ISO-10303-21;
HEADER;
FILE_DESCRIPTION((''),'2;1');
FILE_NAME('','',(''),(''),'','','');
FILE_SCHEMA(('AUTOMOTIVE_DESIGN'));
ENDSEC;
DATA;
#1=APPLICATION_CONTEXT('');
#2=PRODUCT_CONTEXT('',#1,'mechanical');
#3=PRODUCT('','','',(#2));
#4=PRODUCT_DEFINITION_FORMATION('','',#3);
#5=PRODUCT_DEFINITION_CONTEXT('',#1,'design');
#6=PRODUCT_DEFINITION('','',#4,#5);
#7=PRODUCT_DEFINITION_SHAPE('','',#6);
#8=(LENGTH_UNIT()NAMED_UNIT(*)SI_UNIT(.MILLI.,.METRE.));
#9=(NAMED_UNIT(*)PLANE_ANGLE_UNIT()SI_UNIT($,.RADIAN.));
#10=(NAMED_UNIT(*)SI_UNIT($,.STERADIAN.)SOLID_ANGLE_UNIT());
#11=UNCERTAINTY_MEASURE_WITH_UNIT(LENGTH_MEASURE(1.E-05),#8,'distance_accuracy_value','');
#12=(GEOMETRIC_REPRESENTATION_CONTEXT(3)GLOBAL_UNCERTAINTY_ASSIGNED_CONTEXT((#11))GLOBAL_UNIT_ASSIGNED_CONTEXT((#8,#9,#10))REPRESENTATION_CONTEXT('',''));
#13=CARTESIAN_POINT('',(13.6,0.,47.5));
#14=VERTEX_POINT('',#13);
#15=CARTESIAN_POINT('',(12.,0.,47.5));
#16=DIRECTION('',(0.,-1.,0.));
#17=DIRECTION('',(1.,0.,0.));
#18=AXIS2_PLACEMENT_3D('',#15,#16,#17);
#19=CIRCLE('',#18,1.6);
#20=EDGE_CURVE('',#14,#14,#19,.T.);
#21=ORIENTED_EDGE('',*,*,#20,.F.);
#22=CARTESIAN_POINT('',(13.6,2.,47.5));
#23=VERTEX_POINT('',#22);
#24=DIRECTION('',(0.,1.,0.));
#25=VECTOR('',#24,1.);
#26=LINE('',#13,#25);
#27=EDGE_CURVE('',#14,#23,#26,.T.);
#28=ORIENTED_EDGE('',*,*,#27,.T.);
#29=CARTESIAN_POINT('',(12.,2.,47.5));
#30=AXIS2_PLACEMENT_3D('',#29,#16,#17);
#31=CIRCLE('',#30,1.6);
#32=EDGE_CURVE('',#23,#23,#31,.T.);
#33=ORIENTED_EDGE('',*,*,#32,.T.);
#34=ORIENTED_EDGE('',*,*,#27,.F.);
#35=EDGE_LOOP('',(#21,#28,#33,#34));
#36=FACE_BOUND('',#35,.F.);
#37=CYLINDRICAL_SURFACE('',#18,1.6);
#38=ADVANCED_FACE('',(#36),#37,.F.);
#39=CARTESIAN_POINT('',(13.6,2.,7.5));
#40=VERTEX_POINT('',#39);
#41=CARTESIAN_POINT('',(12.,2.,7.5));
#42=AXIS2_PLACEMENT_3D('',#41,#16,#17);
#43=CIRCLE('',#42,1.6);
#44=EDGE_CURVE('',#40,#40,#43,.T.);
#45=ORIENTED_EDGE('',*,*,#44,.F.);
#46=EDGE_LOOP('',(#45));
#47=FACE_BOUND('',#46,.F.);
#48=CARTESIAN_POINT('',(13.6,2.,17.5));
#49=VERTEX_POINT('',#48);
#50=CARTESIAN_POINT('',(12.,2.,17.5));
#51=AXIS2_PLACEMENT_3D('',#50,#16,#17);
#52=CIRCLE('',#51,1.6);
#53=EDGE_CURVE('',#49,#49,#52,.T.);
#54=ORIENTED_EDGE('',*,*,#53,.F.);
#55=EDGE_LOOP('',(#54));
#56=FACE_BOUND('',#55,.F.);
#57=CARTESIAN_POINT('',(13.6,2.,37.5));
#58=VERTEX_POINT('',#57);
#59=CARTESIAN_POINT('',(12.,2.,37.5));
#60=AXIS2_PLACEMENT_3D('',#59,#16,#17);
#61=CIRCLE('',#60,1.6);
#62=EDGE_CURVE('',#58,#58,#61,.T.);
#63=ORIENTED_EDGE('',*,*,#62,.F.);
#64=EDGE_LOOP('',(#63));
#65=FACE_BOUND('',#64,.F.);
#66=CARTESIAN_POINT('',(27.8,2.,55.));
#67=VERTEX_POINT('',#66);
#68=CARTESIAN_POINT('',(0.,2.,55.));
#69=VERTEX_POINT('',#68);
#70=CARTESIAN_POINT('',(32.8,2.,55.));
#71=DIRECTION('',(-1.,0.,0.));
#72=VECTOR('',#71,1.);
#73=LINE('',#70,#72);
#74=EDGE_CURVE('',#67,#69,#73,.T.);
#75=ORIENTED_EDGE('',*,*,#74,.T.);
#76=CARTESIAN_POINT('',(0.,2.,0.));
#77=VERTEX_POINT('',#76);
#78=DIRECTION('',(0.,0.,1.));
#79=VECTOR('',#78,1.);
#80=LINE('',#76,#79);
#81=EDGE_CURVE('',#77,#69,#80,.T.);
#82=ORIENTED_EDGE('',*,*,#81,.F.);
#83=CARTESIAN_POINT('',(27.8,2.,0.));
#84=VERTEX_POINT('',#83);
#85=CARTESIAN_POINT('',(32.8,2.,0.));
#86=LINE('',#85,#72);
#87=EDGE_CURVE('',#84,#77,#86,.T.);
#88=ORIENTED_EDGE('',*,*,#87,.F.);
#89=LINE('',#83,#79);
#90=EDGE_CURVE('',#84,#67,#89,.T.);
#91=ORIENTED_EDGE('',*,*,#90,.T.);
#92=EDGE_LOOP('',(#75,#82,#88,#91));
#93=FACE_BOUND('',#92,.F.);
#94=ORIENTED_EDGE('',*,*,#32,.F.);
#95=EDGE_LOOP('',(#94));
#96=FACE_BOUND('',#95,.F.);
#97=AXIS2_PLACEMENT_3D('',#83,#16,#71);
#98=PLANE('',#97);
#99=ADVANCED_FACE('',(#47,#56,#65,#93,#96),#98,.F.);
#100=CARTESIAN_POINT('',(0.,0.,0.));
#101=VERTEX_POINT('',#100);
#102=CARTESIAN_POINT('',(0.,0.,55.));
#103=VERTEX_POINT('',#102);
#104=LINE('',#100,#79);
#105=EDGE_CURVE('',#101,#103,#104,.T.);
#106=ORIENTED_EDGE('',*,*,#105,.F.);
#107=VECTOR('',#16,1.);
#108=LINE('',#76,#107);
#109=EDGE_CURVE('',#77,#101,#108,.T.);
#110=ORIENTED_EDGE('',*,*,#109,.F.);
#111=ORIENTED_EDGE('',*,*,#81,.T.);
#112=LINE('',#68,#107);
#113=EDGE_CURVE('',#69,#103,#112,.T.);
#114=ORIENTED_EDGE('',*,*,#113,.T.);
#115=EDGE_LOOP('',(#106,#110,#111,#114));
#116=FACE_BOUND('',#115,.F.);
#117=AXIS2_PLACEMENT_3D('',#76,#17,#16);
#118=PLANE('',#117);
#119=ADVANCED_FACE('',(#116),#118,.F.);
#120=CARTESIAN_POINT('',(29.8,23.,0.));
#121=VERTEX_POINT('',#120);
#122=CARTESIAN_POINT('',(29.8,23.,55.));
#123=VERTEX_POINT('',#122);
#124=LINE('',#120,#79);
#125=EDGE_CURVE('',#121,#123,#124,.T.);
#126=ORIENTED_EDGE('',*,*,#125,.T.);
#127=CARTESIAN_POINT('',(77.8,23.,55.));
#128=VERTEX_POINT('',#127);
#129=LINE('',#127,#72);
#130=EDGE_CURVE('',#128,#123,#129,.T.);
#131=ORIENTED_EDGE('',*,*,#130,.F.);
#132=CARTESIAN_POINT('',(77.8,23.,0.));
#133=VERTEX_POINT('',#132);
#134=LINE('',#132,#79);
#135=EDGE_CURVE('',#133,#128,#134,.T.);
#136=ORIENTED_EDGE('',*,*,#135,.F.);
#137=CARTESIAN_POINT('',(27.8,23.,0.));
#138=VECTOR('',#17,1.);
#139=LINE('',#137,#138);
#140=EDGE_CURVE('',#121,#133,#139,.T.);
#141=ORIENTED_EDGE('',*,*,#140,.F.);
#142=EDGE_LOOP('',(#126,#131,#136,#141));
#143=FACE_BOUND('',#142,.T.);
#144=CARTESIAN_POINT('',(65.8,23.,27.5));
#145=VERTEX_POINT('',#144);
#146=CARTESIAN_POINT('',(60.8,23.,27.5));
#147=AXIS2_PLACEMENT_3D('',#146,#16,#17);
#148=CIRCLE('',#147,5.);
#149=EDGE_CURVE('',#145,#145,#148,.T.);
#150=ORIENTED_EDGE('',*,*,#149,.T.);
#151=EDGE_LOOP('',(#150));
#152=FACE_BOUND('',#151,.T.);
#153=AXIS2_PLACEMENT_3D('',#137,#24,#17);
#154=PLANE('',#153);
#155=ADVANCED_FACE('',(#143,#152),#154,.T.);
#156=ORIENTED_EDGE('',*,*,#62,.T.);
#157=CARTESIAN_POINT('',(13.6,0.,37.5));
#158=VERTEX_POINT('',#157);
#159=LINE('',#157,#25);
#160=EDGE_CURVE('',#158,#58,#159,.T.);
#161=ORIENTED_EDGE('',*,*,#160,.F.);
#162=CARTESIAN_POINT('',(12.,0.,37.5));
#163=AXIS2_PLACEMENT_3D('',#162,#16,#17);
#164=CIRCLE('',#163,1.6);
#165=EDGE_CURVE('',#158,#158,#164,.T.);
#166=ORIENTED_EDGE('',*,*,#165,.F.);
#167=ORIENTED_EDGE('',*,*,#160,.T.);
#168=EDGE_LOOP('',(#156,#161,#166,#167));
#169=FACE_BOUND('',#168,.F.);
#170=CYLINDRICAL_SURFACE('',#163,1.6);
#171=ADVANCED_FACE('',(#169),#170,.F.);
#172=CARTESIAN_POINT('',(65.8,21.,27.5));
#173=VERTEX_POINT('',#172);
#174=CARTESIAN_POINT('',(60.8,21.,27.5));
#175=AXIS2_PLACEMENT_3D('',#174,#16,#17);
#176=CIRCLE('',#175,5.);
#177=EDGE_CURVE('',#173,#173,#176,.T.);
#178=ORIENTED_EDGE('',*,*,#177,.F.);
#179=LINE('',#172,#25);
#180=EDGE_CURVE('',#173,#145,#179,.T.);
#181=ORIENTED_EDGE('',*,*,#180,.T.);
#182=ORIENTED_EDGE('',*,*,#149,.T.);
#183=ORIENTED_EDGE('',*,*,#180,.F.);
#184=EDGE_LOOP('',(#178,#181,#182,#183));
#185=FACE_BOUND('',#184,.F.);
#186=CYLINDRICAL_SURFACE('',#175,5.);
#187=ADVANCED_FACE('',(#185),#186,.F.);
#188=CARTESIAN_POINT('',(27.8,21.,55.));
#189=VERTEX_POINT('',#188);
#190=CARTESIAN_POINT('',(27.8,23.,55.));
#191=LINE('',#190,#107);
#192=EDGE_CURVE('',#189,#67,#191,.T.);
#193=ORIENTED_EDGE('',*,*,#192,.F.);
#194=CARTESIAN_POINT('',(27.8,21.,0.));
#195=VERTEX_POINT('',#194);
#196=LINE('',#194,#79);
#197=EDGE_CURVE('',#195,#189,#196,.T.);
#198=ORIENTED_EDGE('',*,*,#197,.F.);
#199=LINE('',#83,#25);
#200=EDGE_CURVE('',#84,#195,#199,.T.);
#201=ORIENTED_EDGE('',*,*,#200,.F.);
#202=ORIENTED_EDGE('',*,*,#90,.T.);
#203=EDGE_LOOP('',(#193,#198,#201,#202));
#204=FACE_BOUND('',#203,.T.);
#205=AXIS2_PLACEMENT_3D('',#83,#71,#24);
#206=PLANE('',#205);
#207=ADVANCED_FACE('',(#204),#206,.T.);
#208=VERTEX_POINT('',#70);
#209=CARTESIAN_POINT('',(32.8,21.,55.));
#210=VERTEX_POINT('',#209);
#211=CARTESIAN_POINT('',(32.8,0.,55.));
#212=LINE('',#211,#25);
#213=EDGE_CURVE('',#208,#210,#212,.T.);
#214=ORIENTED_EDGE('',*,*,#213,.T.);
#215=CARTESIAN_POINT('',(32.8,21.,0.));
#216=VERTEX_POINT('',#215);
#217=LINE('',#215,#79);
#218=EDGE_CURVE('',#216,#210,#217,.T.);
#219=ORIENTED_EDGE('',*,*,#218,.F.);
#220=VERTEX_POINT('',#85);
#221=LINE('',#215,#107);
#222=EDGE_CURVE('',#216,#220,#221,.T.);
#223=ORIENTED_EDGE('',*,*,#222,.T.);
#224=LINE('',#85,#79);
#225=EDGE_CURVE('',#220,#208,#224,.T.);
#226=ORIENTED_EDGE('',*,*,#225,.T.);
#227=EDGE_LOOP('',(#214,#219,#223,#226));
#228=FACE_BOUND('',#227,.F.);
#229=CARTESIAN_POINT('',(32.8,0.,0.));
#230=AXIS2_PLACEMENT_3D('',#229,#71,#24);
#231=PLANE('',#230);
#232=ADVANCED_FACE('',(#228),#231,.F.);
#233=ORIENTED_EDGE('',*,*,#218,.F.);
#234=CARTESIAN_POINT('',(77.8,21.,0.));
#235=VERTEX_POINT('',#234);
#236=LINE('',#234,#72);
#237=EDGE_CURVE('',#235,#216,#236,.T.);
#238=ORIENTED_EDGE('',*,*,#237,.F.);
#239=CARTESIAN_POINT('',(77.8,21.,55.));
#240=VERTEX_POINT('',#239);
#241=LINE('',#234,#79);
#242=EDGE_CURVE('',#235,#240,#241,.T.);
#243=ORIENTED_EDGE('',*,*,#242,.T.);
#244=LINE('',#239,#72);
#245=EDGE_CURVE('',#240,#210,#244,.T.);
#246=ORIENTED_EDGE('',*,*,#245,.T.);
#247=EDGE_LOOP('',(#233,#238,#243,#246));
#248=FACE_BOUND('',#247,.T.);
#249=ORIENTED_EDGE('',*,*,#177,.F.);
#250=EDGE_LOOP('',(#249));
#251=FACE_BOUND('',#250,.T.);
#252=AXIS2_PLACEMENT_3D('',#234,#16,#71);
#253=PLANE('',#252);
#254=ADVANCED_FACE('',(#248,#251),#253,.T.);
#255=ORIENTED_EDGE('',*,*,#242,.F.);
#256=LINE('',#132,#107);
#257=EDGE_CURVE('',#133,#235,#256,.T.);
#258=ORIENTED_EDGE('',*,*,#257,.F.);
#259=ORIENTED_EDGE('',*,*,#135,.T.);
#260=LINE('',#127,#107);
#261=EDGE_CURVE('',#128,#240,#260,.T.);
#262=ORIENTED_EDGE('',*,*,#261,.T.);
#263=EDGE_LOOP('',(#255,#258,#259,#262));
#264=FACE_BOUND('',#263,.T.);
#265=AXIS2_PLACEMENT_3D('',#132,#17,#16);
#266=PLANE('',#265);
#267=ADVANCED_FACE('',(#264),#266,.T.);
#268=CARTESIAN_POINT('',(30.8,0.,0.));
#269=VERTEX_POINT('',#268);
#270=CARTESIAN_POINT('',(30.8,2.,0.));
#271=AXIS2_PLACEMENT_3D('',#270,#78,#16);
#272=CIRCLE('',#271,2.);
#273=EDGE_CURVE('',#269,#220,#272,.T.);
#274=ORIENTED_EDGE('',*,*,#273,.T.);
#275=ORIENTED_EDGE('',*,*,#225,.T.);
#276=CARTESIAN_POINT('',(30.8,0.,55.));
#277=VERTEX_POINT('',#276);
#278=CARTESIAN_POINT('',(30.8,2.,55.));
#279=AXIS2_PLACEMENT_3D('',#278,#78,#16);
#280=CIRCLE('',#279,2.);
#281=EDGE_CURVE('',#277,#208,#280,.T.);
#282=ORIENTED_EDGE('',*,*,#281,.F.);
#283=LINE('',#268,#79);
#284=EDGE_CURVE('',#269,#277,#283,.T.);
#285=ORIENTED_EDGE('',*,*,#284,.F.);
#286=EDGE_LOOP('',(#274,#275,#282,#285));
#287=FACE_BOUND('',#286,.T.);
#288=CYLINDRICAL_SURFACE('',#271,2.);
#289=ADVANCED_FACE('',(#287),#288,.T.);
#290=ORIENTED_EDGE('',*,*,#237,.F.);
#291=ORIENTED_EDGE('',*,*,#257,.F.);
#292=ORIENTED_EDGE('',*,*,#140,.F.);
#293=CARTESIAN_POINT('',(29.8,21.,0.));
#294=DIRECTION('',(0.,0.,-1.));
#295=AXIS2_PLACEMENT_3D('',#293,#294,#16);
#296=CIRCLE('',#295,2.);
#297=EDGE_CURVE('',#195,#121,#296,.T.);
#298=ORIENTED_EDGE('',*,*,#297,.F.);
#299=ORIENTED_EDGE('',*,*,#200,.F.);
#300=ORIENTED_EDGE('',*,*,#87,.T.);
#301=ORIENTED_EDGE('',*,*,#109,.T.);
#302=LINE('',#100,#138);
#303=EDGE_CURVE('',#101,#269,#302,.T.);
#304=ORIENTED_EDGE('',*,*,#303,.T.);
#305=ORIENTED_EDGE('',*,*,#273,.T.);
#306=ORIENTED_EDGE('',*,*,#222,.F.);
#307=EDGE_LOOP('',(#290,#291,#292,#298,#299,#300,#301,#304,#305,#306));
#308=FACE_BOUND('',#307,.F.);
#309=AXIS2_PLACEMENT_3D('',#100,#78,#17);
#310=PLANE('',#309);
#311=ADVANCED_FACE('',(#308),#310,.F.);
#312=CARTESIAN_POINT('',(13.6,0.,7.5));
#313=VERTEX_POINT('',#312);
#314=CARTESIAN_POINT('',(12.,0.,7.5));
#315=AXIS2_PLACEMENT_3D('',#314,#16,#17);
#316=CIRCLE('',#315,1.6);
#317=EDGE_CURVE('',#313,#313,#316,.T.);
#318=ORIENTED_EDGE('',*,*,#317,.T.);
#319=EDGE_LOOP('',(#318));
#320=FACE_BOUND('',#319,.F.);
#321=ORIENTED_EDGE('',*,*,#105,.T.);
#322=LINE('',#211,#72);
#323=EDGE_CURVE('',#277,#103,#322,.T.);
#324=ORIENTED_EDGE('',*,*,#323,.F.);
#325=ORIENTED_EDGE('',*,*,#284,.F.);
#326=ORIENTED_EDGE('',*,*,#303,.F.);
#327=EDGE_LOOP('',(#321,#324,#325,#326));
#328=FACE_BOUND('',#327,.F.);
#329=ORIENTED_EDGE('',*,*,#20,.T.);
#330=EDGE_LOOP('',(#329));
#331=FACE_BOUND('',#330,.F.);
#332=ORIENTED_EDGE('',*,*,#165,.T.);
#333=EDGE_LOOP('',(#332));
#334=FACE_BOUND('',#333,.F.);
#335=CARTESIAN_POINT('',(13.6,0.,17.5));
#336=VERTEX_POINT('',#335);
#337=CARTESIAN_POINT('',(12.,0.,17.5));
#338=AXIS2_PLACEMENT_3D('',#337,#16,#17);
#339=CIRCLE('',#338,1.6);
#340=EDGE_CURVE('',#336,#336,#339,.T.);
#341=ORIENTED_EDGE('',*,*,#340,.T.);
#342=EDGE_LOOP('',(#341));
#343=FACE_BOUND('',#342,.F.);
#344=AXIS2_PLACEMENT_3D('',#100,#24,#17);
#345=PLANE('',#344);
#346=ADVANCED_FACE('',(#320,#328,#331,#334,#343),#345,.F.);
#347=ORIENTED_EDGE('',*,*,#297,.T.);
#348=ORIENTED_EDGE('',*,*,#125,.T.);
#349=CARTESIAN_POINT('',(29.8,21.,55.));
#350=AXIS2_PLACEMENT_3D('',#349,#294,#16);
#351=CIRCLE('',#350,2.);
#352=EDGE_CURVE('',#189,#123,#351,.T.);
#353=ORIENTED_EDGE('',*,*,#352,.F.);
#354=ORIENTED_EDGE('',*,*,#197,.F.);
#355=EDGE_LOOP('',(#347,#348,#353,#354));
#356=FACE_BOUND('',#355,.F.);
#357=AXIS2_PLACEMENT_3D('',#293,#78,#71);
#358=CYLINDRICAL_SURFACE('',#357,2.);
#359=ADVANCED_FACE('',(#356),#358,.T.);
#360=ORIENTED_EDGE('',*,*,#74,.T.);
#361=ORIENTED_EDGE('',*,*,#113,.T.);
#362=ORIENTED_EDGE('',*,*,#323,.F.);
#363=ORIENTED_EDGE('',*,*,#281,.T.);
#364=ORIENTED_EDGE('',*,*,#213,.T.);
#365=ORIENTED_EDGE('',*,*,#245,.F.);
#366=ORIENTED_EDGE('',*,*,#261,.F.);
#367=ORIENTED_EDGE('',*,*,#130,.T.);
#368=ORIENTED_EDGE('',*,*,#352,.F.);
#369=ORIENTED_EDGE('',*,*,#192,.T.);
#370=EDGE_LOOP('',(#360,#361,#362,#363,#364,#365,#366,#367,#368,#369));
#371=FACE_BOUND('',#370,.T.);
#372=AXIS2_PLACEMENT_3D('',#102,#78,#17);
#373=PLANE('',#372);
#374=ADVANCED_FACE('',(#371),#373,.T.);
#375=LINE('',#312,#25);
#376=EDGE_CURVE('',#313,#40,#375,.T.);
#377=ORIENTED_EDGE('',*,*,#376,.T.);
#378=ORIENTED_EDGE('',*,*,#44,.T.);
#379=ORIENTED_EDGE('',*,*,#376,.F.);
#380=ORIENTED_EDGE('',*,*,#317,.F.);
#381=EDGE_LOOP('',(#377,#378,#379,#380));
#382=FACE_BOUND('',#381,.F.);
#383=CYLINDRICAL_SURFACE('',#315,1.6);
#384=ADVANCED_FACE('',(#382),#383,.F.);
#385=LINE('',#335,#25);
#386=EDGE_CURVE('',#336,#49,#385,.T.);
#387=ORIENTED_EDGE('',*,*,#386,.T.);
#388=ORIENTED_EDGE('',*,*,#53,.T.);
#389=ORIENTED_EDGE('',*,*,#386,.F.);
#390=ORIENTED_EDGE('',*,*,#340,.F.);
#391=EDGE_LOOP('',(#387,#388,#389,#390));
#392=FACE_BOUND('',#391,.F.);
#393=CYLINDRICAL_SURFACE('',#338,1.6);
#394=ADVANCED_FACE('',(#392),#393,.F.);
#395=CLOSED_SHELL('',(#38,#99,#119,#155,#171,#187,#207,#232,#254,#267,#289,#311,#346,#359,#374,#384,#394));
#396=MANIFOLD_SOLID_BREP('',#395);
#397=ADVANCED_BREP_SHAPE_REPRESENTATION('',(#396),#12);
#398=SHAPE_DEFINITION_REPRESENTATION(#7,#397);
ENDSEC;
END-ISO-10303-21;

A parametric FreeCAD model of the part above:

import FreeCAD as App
import Part
import Sketcher
from FreeCAD import Vector


def edges_at(feature, points):
    """Names of the edges that pass closest to the given points."""
    edges = feature.Shape.Edges
    near = lambda p: min(range(len(edges)), key=lambda i: edges[i].distToShape(Part.Vertex(*p))[0])
    return sorted({f"Edge{near(p) + 1}" for p in points})

doc = App.newDocument("Part")
body = doc.addObject("PartDesign::Body", "Body")

# Sketch on XY plane
sketch1 = body.newObject("Sketcher::SketchObject", "Sketch")
sketch1.AttachmentSupport = (doc.getObject("XY_Plane"), [""])
sketch1.MapMode = "FlatFace"
sketch1.addGeometry([
    Part.LineSegment(Vector(0, 2, 0), Vector(0, 0, 0)),  # 0
    Part.LineSegment(Vector(0, 0, 0), Vector(32.8, 0, 0)),  # 1
    Part.LineSegment(Vector(32.8, 0, 0), Vector(32.8, 21, 0)),  # 2
    Part.LineSegment(Vector(32.8, 21, 0), Vector(77.8, 21, 0)),  # 3
    Part.LineSegment(Vector(77.8, 21, 0), Vector(77.8, 23, 0)),  # 4
    Part.LineSegment(Vector(77.8, 23, 0), Vector(27.8, 23, 0)),  # 5
    Part.LineSegment(Vector(27.8, 23, 0), Vector(27.8, 2, 0)),  # 6
    Part.LineSegment(Vector(27.8, 2, 0), Vector(0, 2, 0)),  # 7
], False)
sketch1.addConstraint([
    Sketcher.Constraint("Coincident", 0, 2, 1, 1),
    Sketcher.Constraint("Coincident", 1, 2, 2, 1),
    Sketcher.Constraint("Coincident", 2, 2, 3, 1),
    Sketcher.Constraint("Coincident", 3, 2, 4, 1),
    Sketcher.Constraint("Coincident", 4, 2, 5, 1),
    Sketcher.Constraint("Coincident", 5, 2, 6, 1),
    Sketcher.Constraint("Coincident", 6, 2, 7, 1),
    Sketcher.Constraint("Coincident", 7, 2, 0, 1),
    Sketcher.Constraint("Vertical", 0),
    Sketcher.Constraint("Horizontal", 1),
    Sketcher.Constraint("Vertical", 2),
    Sketcher.Constraint("Horizontal", 3),
    Sketcher.Constraint("Vertical", 4),
    Sketcher.Constraint("Horizontal", 5),
    Sketcher.Constraint("Vertical", 6),
    Sketcher.Constraint("Horizontal", 7),
    Sketcher.Constraint("Coincident", 0, 2, -1, 1),
    Sketcher.Constraint("Equal", 0, 4),
    Sketcher.Constraint("DistanceX", 5, 2, 5, 1, 50.0),
    Sketcher.Constraint("DistanceY", 0, 2, 0, 1, 2.0),
    Sketcher.Constraint("DistanceX", 1, 1, 1, 2, 32.8),
    Sketcher.Constraint("DistanceY", -1, 1, 4, 2, 23.0),
    Sketcher.Constraint("DistanceX", 5, 2, 2, 2, 5.0),
])
pad1 = body.newObject("PartDesign::Pad", "Pad")
pad1.Profile = sketch1
pad1.Length = 55

# Sketch on XZ plane
sketch2 = body.newObject("Sketcher::SketchObject", "Sketch001")
sketch2.AttachmentSupport = (doc.getObject("XZ_Plane"), [""])
sketch2.MapMode = "FlatFace"
sketch2.addGeometry([
    Part.Circle(Vector(12, 47.5, 0), Vector(0, 0, 1), 1.6),
    Part.Circle(Vector(12, 37.5, 0), Vector(0, 0, 1), 1.6),
    Part.Circle(Vector(12, 17.5, 0), Vector(0, 0, 1), 1.6),
    Part.Circle(Vector(12, 7.5, 0), Vector(0, 0, 1), 1.6),
], False)
sketch2.addConstraint([
    Sketcher.Constraint("Equal", 0, 1),
    Sketcher.Constraint("Equal", 1, 2),
    Sketcher.Constraint("Equal", 2, 3),
    Sketcher.Constraint("Vertical", 0, 3, 1, 3),
    Sketcher.Constraint("Vertical", 1, 3, 2, 3),
    Sketcher.Constraint("Vertical", 2, 3, 3, 3),
    Sketcher.Constraint("Diameter", 0, 3.2),
    Sketcher.Constraint("DistanceX", -1, 1, 0, 3, 12.0),
    Sketcher.Constraint("DistanceY", 1, 3, 0, 3, 10.0),
    Sketcher.Constraint("DistanceY", 3, 3, 2, 3, 10.0),
    Sketcher.Constraint("DistanceY", 2, 3, 1, 3, 20.0),
    Sketcher.Constraint("DistanceY", -1, 1, 0, 3, 47.5),
])
pocket1 = body.newObject("PartDesign::Pocket", "Pocket")
pocket1.Profile = sketch2
pocket1.Length = 25
doc.recompute()

fillet = body.newObject("PartDesign::Fillet", "Fillet")
fillet.Base = (pocket1, edges_at(pocket1, [(32.8, 0, 27.5)]))
fillet.Radius = 2
doc.recompute()

fillet2 = body.newObject("PartDesign::Fillet", "Fillet001")
fillet2.Base = (fillet, edges_at(fillet, [(27.8, 23, 27.5)]))
fillet2.Radius = 2

# Sketch on XZ plane
sketch3 = body.newObject("Sketcher::SketchObject", "Sketch002")
sketch3.AttachmentSupport = (doc.getObject("XZ_Plane"), [""])
sketch3.MapMode = "FlatFace"
sketch3.AttachmentOffset = App.Placement(Vector(0, 0, -21), App.Rotation())
sketch3.addGeometry(Part.Circle(Vector(60.8, 27.5, 0), Vector(0, 0, 1), 5), False)
sketch3.addConstraint([
    Sketcher.Constraint("Diameter", 0, 10.0),
    Sketcher.Constraint("DistanceX", -1, 1, 0, 3, 60.8),
    Sketcher.Constraint("DistanceY", -1, 1, 0, 3, 27.5),
])
pocket2 = body.newObject("PartDesign::Pocket", "Pocket001")
pocket2.Profile = sketch3
pocket2.Length = 15

doc.recompute()
